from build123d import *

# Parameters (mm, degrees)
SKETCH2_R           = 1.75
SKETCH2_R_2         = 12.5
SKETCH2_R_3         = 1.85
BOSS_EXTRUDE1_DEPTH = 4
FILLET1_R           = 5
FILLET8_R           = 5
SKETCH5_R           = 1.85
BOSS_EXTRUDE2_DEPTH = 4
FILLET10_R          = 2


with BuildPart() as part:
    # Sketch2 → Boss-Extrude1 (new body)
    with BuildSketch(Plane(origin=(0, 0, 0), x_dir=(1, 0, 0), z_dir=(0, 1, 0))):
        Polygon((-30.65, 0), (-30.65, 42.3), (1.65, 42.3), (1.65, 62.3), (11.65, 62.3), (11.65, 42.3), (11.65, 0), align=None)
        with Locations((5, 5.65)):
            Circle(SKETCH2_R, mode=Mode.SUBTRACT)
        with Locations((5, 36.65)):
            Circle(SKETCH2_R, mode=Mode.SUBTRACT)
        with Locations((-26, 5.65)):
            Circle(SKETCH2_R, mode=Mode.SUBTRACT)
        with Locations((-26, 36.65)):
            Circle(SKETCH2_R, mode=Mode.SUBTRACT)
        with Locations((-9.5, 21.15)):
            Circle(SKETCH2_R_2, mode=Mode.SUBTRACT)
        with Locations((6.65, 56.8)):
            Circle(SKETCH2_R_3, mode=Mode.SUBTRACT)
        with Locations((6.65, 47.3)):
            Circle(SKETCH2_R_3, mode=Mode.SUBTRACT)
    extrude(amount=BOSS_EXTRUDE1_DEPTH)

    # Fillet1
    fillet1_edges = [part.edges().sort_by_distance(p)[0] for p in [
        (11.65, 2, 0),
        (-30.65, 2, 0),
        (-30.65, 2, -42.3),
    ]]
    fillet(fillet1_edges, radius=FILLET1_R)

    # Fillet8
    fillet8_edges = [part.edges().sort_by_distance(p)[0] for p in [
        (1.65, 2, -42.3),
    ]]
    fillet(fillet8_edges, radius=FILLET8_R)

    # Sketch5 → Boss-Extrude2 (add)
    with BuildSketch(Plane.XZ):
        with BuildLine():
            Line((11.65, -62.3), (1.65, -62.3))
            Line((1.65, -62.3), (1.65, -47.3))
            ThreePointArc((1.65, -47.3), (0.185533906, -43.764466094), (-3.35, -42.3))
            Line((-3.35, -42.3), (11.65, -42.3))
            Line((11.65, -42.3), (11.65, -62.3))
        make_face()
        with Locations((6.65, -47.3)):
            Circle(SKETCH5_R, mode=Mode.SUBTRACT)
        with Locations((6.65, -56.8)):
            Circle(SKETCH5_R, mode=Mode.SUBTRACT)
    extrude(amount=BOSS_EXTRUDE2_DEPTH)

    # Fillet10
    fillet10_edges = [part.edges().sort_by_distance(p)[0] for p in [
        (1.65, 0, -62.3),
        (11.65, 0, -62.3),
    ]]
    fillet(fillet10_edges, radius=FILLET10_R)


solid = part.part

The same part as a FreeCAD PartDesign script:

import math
import FreeCAD as App
import Part
import Sketcher

V = App.Vector


def edges_at(feature, points):
    """Names of the edges that pass closest to the given points."""
    edges = feature.Shape.Edges
    near = lambda p: min(range(len(edges)), key=lambda i: edges[i].distToShape(Part.Vertex(*p))[0])
    return sorted({f"Edge{near(p) + 1}" for p in points})

doc = App.newDocument("Part")
body = doc.addObject("PartDesign::Body", "Body")

sketch1 = body.newObject("Sketcher::SketchObject", "Sketch")
sketch1.AttachmentSupport = (doc.getObject("XZ_Plane"), [""])
sketch1.MapMode = "FlatFace"
sketch1.addGeometry(Part.LineSegment(V(-30.6, -42.3, 0), V(-30.6, 0, 0)), False)
sketch1.addGeometry(Part.LineSegment(V(-30.6, 0, 0), V(11.7, 0, 0)), False)
sketch1.addGeometry(Part.LineSegment(V(11.7, 0, 0), V(11.7, -62.3, 0)), False)
sketch1.addGeometry(Part.LineSegment(V(11.7, -62.3, 0), V(1.6, -62.3, 0)), False)
sketch1.addGeometry(Part.LineSegment(V(1.6, -62.3, 0), V(1.6, -42.3, 0)), False)
sketch1.addGeometry(Part.LineSegment(V(1.6, -42.3, 0), V(-30.6, -42.3, 0)), False)
sketch1.addGeometry(Part.Circle(V(5, -5.7, 0), V(0, 0, 1), 1.8), False)
sketch1.addGeometry(Part.Circle(V(-9.5, -21.1, 0), V(0, 0, 1), 12.5), False)
sketch1.addGeometry(Part.Circle(V(-26, -5.7, 0), V(0, 0, 1), 1.8), False)
sketch1.addGeometry(Part.Circle(V(5, -36.6, 0), V(0, 0, 1), 1.8), False)
sketch1.addGeometry(Part.Circle(V(6.7, -47.3, 0), V(0, 0, 1), 1.9), False)
sketch1.addGeometry(Part.Circle(V(6.7, -56.8, 0), V(0, 0, 1), 1.9), False)
sketch1.addGeometry(Part.Circle(V(-26, -36.6, 0), V(0, 0, 1), 1.8), False)
sketch1.addConstraint(Sketcher.Constraint("Coincident", 0, 2, 1, 1))
sketch1.addConstraint(Sketcher.Constraint("Coincident", 1, 2, 2, 1))
sketch1.addConstraint(Sketcher.Constraint("Coincident", 2, 2, 3, 1))
sketch1.addConstraint(Sketcher.Constraint("Coincident", 3, 2, 4, 1))
sketch1.addConstraint(Sketcher.Constraint("Coincident", 4, 2, 5, 1))
sketch1.addConstraint(Sketcher.Constraint("Coincident", 5, 2, 0, 1))
sketch1.addConstraint(Sketcher.Constraint("Vertical", 0))
sketch1.addConstraint(Sketcher.Constraint("Horizontal", 1))
sketch1.addConstraint(Sketcher.Constraint("Vertical", 2))
sketch1.addConstraint(Sketcher.Constraint("Horizontal", 3))
sketch1.addConstraint(Sketcher.Constraint("Vertical", 4))
sketch1.addConstraint(Sketcher.Constraint("Horizontal", 5))
sketch1.addConstraint(Sketcher.Constraint("Equal", 6, 8))
sketch1.addConstraint(Sketcher.Constraint("Equal", 8, 9))
sketch1.addConstraint(Sketcher.Constraint("Equal", 10, 11))
sketch1.addConstraint(Sketcher.Constraint("Equal", 9, 12))
sketch1.addConstraint(Sketcher.Constraint("PointOnObject", 0, 2, -1))
sketch1.addConstraint(Sketcher.Constraint("Horizontal", 6, 3, 8, 3))
sketch1.addConstraint(Sketcher.Constraint("Horizontal", 9, 3, 12, 3))
sketch1.addConstraint(Sketcher.Constraint("Vertical", 6, 3, 9, 3))
sketch1.addConstraint(Sketcher.Constraint("Vertical", 10, 3, 11, 3))
sketch1.addConstraint(Sketcher.Constraint("Vertical", 8, 3, 12, 3))
sketch1.addConstraint(Sketcher.Constraint("Equal", 1, 0))
sketch1.addConstraint(Sketcher.Constraint("Diameter", 7, 25.0))
sketch1.addConstraint(Sketcher.Constraint("Diameter", 6, 3.5))
sketch1.addConstraint(Sketcher.Constraint("Diameter", 10, 3.7))
sketch1.addConstraint(Sketcher.Constraint("DistanceX", 3, 2, 3, 1, 10.0))
sketch1.addConstraint(Sketcher.Constraint("DistanceY", 4, 1, 4, 2, 20.0))
sketch1.addConstraint(Sketcher.Constraint("DistanceX", 1, 1, 1, 2, 42.3))
sketch1.addConstraint(Sketcher.Constraint("DistanceX", -1, 1, 6, 3, 5.0))
sketch1.addConstraint(Sketcher.Constraint("DistanceX", 8, 3, -1, 1, 26.0))
sketch1.addConstraint(Sketcher.Constraint("DistanceY", 9, 3, 6, 3, 31.0))
sketch1.addConstraint(Sketcher.Constraint("DistanceX", 11, 3, 2, 2, 5.0))
sketch1.addConstraint(Sketcher.Constraint("DistanceY", 2, 2, 10, 3, 15.0))
sketch1.addConstraint(Sketcher.Constraint("DistanceX", 7, 3, -1, 1, 9.5))
sketch1.addConstraint(Sketcher.Constraint("DistanceY", 11, 3, -1, 1, 56.8))
sketch1.addConstraint(Sketcher.Constraint("DistanceY", 7, 3, 6, 3, 15.5))
sketch1.addConstraint(Sketcher.Constraint("DistanceY", 6, 3, -1, 1, 5.65))
sketch1.addConstraint(Sketcher.Constraint("DistanceX", -1, 1, 10, 3, 6.65))
pad1 = body.newObject("PartDesign::Pad", "Pad")
pad1.Profile = sketch1
pad1.Length = 4
pad1.Reversed = True
doc.recompute()

fillet = body.newObject("PartDesign::Fillet", "Fillet")
fillet.Base = (pad1, edges_at(pad1, [(11.65, 2, 0), (-30.65, 2, 0), (-30.65, 2, -42.3)]))
fillet.Radius = 5
doc.recompute()

fillet2 = body.newObject("PartDesign::Fillet", "Fillet001")
fillet2.Base = (fillet, edges_at(fillet, [(1.65, 2, -42.3)]))
fillet2.Radius = 5

sketch2 = body.newObject("Sketcher::SketchObject", "Sketch001")
sketch2.AttachmentSupport = (doc.getObject("XZ_Plane"), [""])
sketch2.MapMode = "FlatFace"
sketch2.addGeometry(Part.LineSegment(V(1.6, -62.3, 0), V(11.7, -62.3, 0)), False)
sketch2.addGeometry(Part.LineSegment(V(11.7, -62.3, 0), V(11.7, -42.3, 0)), False)
sketch2.addGeometry(Part.LineSegment(V(11.7, -42.3, 0), V(-3.4, -42.3, 0)), False)
sketch2.addGeometry(Part.ArcOfCircle(Part.Circle(V(-3.4, -47.3, 0), V(0, 0, 1), 5), math.radians(0), math.radians(90)), False)
sketch2.addGeometry(Part.LineSegment(V(1.6, -47.3, 0), V(1.6, -62.3, 0)), False)
sketch2.addGeometry(Part.Circle(V(6.7, -56.8, 0), V(0, 0, 1), 1.9), False)
sketch2.addGeometry(Part.Circle(V(6.7, -47.3, 0), V(0, 0, 1), 1.9), False)
sketch2.addConstraint(Sketcher.Constraint("Coincident", 0, 2, 1, 1))
sketch2.addConstraint(Sketcher.Constraint("Coincident", 1, 2, 2, 1))
sketch2.addConstraint(Sketcher.Constraint("Tangent", 2, 2, 3, 2))
sketch2.addConstraint(Sketcher.Constraint("Tangent", 3, 1, 4, 1))
sketch2.addConstraint(Sketcher.Constraint("Coincident", 4, 2, 0, 1))
sketch2.addConstraint(Sketcher.Constraint("Horizontal", 0))
sketch2.addConstraint(Sketcher.Constraint("Vertical", 1))
sketch2.addConstraint(Sketcher.Constraint("Horizontal", 2))
sketch2.addConstraint(Sketcher.Constraint("Vertical", 4))
sketch2.addConstraint(Sketcher.Constraint("Equal", 5, 6))
sketch2.addConstraint(Sketcher.Constraint("Horizontal", 3, 3, 6, 3))
sketch2.addConstraint(Sketcher.Constraint("Vertical", 5, 3, 6, 3))
sketch2.addConstraint(Sketcher.Constraint("Equal", 2, 4))
sketch2.addConstraint(Sketcher.Constraint("Radius", 3, 5.0))
sketch2.addConstraint(Sketcher.Constraint("Diameter", 5, 3.7))
sketch2.addConstraint(Sketcher.Constraint("DistanceX", 0, 1, 0, 2, 10.0))
sketch2.addConstraint(Sketcher.Constraint("DistanceX", 3, 3, 5, 3, 10.0))
sketch2.addConstraint(Sketcher.Constraint("DistanceY", 3, 3, -1, 1, 47.3))
sketch2.addConstraint(Sketcher.Constraint("DistanceY", 5, 3, -1, 1, 56.8))
sketch2.addConstraint(Sketcher.Constraint("DistanceX", 3, 3, -1, 1, 3.35))
pad2 = body.newObject("PartDesign::Pad", "Pad001")
pad2.Profile = sketch2
pad2.Length = 4
doc.recompute()

fillet3 = body.newObject("PartDesign::Fillet", "Fillet002")
fillet3.Base = (pad2, edges_at(pad2, [(1.65, 0, -62.3), (11.65, 0, -62.3)]))
fillet3.Radius = 2

doc.recompute()
